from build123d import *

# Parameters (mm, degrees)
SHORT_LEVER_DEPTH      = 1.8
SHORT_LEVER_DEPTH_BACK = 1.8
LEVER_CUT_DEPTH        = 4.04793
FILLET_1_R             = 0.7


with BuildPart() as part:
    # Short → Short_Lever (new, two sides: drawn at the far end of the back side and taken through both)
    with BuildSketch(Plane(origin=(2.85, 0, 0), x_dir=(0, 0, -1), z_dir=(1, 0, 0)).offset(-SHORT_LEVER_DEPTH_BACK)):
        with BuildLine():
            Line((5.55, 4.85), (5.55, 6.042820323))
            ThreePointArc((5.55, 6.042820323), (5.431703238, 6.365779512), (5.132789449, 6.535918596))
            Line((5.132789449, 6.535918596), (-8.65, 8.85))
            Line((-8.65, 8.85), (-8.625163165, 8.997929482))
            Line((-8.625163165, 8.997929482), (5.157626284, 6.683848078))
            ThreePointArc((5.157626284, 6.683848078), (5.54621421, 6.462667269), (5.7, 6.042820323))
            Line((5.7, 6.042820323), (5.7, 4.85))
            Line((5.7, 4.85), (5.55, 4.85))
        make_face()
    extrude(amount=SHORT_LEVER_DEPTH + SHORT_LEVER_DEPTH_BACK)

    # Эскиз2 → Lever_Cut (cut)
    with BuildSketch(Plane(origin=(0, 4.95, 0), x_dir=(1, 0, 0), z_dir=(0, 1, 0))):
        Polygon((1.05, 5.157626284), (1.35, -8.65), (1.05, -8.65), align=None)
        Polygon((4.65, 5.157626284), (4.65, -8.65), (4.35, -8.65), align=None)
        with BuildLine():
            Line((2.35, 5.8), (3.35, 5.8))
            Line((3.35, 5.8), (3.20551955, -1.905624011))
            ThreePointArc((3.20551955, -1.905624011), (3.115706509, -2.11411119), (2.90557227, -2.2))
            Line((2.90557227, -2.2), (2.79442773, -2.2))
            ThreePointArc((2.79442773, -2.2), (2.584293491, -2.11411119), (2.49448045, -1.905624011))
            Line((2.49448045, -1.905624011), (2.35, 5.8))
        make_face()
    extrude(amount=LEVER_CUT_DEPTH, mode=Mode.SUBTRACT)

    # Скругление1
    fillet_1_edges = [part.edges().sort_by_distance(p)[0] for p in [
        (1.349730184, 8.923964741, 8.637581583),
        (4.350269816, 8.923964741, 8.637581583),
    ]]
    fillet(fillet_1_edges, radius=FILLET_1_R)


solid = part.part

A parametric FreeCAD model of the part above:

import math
import FreeCAD as App
import Part
import Sketcher
from FreeCAD import Vector
Q = App.Units.Quantity


def edges_at(feature, points):
    """Names of the edges that pass closest to the given points."""
    edges = feature.Shape.Edges
    near = lambda p: min(range(len(edges)), key=lambda i: edges[i].distToShape(Part.Vertex(*p))[0])
    return sorted({f"Edge{near(p) + 1}" for p in points})

doc = App.newDocument("Part")
body = doc.addObject("PartDesign::Body", "Body")

sketch1 = body.newObject("Sketcher::SketchObject", "Sketch")
sketch1.AttachmentSupport = (doc.getObject("YZ_Plane"), [""])
sketch1.MapMode = "FlatFace"
sketch1.AttachmentOffset = App.Placement(Vector(0, 0, 2.85), App.Rotation())
sketch1.addGeometry([
    Part.LineSegment(Vector(6.04282, -5.55, 0), Vector(4.85, -5.55, 0)),
    Part.LineSegment(Vector(4.85, -5.55, 0), Vector(4.85, -5.7, 0)),
    Part.LineSegment(Vector(4.85, -5.7, 0), Vector(6.04282, -5.7, 0)),
    Part.ArcOfCircle(Part.Circle(Vector(6.04282, -5.05, 0), Vector(0, 0, 1), 0.65), math.radians(-90), math.radians(-9.530865)),
    Part.LineSegment(Vector(6.683848, -5.157626, 0), Vector(8.997929, 8.625163, 0)),
    Part.LineSegment(Vector(8.997929, 8.625163, 0), Vector(8.85, 8.65, 0)),
    Part.LineSegment(Vector(8.85, 8.65, 0), Vector(6.535919, -5.132789, 0)),
    Part.ArcOfCircle(Part.Circle(Vector(6.04282, -5.05, 0), Vector(0, 0, 1), 0.5), math.radians(-90), math.radians(-9.530865)),
], False)
sketch1.addConstraint([
    Sketcher.Constraint("Coincident", 0, 2, 1, 1),
    Sketcher.Constraint("Coincident", 1, 2, 2, 1),
    Sketcher.Constraint("Tangent", 2, 2, 3, 1),
    Sketcher.Constraint("Tangent", 3, 2, 4, 1),
    Sketcher.Constraint("Coincident", 4, 2, 5, 1),
    Sketcher.Constraint("Coincident", 5, 2, 6, 1),
    Sketcher.Constraint("Tangent", 6, 2, 7, 2),
    Sketcher.Constraint("Tangent", 7, 1, 0, 1),
    Sketcher.Constraint("Horizontal", 0),
    Sketcher.Constraint("Vertical", 1),
    Sketcher.Constraint("Horizontal", 2),
    Sketcher.Constraint("Coincident", 7, 3, 3, 3),
    Sketcher.Constraint("Perpendicular", 4, 5),
    Sketcher.Constraint("Perpendicular", 5, 6),
    Sketcher.Constraint("Radius", 7, Q("0.5 mm")),
    Sketcher.Constraint("Radius", 3, Q("0.65 mm")),
    Sketcher.Constraint("DistanceY", 1, 2, -1, 1, Q("5.7 mm")),
    Sketcher.Constraint("DistanceY", 7, 3, 5, 2, Q("13.7 mm")),
    Sketcher.Constraint("DistanceX", -1, 1, 0, 2, Q("4.85 mm")),
    Sketcher.Constraint("DistanceX", -1, 1, 5, 2, Q("8.85 mm")),
    Sketcher.Constraint("DistanceX", 0, 2, 0, 1, Q("1.19282 mm")),
])
pad1 = body.newObject("PartDesign::Pad", "Pad")
pad1.Profile = sketch1
pad1.Type = "TwoLengths"
pad1.Length = 1.8
pad1.Length2 = 1.8

sketch2 = body.newObject("Sketcher::SketchObject", "Sketch001")
sketch2.AttachmentSupport = (doc.getObject("XZ_Plane"), [""])
sketch2.MapMode = "FlatFace"
sketch2.AttachmentOffset = App.Placement(Vector(0, 0, -4.95), App.Rotation())
sketch2.addGeometry([
    Part.LineSegment(Vector(1.35, 8.65, 0), Vector(1.05, -5.157626, 0)),
    Part.LineSegment(Vector(1.05, -5.157626, 0), Vector(1.05, 8.65, 0)),
    Part.LineSegment(Vector(1.05, 8.65, 0), Vector(1.35, 8.65, 0)),
    Part.LineSegment(Vector(4.65, 8.65, 0), Vector(4.65, -5.157626, 0)),
    Part.LineSegment(Vector(4.65, -5.157626, 0), Vector(4.35, 8.65, 0)),
    Part.LineSegment(Vector(4.35, 8.65, 0), Vector(4.65, 8.65, 0)),
    Part.LineSegment(Vector(3.35, -5.8, 0), Vector(2.35, -5.8, 0)),
    Part.LineSegment(Vector(2.35, -5.8, 0), Vector(2.49448, 1.905624, 0)),
    Part.ArcOfCircle(Part.Circle(Vector(2.794428, 1.9, 0), Vector(0, 0, 1), 0.3), math.radians(90), math.radians(178.92583)),
    Part.LineSegment(Vector(2.794428, 2.2, 0), Vector(2.905572, 2.2, 0)),
    Part.ArcOfCircle(Part.Circle(Vector(2.905572, 1.9, 0), Vector(0, 0, 1), 0.3), math.radians(1.07417), math.radians(90)),
    Part.LineSegment(Vector(3.20552, 1.905624, 0), Vector(3.35, -5.8, 0)),
], False)
sketch2.addConstraint([
    Sketcher.Constraint("Coincident", 0, 2, 1, 1),
    Sketcher.Constraint("Coincident", 1, 2, 2, 1),
    Sketcher.Constraint("Coincident", 2, 2, 0, 1),
    Sketcher.Constraint("Coincident", 3, 2, 4, 1),
    Sketcher.Constraint("Coincident", 4, 2, 5, 1),
    Sketcher.Constraint("Coincident", 5, 2, 3, 1),
    Sketcher.Constraint("Coincident", 6, 2, 7, 1),
    Sketcher.Constraint("Tangent", 7, 2, 8, 2),
    Sketcher.Constraint("Tangent", 8, 1, 9, 1),
    Sketcher.Constraint("Tangent", 9, 2, 10, 2),
    Sketcher.Constraint("Tangent", 10, 1, 11, 1),
    Sketcher.Constraint("Coincident", 11, 2, 6, 1),
    Sketcher.Constraint("Vertical", 1),
    Sketcher.Constraint("Horizontal", 2),
    Sketcher.Constraint("Vertical", 3),
    Sketcher.Constraint("Horizontal", 5),
    Sketcher.Constraint("Horizontal", 6),
    Sketcher.Constraint("Horizontal", 9),
    Sketcher.Constraint("Equal", 8, 10),
    Sketcher.Constraint("Horizontal", 0, 2, 3, 2),
    Sketcher.Constraint("Horizontal", 2, 2, 4, 2),
    Sketcher.Constraint("Horizontal", 7, 2, 10, 1),
    Sketcher.Constraint("Equal", 2, 5),
    Sketcher.Constraint("Radius", 8, Q("0.3 mm")),
    Sketcher.Constraint("DistanceX", 6, 2, 6, 1, Q("1 mm")),
    Sketcher.Constraint("DistanceX", 2, 1, 2, 2, Q("0.3 mm")),
    Sketcher.Constraint("DistanceX", 2, 2, 4, 2, Q("3 mm")),
    Sketcher.Constraint("DistanceX", 2, 2, 6, 2, Q("1 mm")),
    Sketcher.Constraint("DistanceY", -1, 1, 8, 3, Q("1.9 mm")),
    Sketcher.Constraint("DistanceY", 6, 2, -1, 1, Q("5.8 mm")),
    Sketcher.Constraint("DistanceX", -1, 1, 0, 2, Q("1.05 mm")),
    Sketcher.Constraint("DistanceY", -1, 1, 1, 2, Q("8.65 mm")),
    Sketcher.Constraint("Distance", 7, Q("7.706978 mm")),
    Sketcher.Constraint("DistanceY", 1, 1, 1, 2, Q("13.807626 mm")),
])
pocket1 = body.newObject("PartDesign::Pocket", "Pocket")
pocket1.Profile = sketch2
pocket1.Length = 4.04793
doc.recompute()

fillet = body.newObject("PartDesign::Fillet", "Fillet")
fillet.Base = (pocket1, edges_at(pocket1, [(1.35, 8.924, 8.638), (4.35, 8.924, 8.638)]))
fillet.Radius = 0.7

doc.recompute()
